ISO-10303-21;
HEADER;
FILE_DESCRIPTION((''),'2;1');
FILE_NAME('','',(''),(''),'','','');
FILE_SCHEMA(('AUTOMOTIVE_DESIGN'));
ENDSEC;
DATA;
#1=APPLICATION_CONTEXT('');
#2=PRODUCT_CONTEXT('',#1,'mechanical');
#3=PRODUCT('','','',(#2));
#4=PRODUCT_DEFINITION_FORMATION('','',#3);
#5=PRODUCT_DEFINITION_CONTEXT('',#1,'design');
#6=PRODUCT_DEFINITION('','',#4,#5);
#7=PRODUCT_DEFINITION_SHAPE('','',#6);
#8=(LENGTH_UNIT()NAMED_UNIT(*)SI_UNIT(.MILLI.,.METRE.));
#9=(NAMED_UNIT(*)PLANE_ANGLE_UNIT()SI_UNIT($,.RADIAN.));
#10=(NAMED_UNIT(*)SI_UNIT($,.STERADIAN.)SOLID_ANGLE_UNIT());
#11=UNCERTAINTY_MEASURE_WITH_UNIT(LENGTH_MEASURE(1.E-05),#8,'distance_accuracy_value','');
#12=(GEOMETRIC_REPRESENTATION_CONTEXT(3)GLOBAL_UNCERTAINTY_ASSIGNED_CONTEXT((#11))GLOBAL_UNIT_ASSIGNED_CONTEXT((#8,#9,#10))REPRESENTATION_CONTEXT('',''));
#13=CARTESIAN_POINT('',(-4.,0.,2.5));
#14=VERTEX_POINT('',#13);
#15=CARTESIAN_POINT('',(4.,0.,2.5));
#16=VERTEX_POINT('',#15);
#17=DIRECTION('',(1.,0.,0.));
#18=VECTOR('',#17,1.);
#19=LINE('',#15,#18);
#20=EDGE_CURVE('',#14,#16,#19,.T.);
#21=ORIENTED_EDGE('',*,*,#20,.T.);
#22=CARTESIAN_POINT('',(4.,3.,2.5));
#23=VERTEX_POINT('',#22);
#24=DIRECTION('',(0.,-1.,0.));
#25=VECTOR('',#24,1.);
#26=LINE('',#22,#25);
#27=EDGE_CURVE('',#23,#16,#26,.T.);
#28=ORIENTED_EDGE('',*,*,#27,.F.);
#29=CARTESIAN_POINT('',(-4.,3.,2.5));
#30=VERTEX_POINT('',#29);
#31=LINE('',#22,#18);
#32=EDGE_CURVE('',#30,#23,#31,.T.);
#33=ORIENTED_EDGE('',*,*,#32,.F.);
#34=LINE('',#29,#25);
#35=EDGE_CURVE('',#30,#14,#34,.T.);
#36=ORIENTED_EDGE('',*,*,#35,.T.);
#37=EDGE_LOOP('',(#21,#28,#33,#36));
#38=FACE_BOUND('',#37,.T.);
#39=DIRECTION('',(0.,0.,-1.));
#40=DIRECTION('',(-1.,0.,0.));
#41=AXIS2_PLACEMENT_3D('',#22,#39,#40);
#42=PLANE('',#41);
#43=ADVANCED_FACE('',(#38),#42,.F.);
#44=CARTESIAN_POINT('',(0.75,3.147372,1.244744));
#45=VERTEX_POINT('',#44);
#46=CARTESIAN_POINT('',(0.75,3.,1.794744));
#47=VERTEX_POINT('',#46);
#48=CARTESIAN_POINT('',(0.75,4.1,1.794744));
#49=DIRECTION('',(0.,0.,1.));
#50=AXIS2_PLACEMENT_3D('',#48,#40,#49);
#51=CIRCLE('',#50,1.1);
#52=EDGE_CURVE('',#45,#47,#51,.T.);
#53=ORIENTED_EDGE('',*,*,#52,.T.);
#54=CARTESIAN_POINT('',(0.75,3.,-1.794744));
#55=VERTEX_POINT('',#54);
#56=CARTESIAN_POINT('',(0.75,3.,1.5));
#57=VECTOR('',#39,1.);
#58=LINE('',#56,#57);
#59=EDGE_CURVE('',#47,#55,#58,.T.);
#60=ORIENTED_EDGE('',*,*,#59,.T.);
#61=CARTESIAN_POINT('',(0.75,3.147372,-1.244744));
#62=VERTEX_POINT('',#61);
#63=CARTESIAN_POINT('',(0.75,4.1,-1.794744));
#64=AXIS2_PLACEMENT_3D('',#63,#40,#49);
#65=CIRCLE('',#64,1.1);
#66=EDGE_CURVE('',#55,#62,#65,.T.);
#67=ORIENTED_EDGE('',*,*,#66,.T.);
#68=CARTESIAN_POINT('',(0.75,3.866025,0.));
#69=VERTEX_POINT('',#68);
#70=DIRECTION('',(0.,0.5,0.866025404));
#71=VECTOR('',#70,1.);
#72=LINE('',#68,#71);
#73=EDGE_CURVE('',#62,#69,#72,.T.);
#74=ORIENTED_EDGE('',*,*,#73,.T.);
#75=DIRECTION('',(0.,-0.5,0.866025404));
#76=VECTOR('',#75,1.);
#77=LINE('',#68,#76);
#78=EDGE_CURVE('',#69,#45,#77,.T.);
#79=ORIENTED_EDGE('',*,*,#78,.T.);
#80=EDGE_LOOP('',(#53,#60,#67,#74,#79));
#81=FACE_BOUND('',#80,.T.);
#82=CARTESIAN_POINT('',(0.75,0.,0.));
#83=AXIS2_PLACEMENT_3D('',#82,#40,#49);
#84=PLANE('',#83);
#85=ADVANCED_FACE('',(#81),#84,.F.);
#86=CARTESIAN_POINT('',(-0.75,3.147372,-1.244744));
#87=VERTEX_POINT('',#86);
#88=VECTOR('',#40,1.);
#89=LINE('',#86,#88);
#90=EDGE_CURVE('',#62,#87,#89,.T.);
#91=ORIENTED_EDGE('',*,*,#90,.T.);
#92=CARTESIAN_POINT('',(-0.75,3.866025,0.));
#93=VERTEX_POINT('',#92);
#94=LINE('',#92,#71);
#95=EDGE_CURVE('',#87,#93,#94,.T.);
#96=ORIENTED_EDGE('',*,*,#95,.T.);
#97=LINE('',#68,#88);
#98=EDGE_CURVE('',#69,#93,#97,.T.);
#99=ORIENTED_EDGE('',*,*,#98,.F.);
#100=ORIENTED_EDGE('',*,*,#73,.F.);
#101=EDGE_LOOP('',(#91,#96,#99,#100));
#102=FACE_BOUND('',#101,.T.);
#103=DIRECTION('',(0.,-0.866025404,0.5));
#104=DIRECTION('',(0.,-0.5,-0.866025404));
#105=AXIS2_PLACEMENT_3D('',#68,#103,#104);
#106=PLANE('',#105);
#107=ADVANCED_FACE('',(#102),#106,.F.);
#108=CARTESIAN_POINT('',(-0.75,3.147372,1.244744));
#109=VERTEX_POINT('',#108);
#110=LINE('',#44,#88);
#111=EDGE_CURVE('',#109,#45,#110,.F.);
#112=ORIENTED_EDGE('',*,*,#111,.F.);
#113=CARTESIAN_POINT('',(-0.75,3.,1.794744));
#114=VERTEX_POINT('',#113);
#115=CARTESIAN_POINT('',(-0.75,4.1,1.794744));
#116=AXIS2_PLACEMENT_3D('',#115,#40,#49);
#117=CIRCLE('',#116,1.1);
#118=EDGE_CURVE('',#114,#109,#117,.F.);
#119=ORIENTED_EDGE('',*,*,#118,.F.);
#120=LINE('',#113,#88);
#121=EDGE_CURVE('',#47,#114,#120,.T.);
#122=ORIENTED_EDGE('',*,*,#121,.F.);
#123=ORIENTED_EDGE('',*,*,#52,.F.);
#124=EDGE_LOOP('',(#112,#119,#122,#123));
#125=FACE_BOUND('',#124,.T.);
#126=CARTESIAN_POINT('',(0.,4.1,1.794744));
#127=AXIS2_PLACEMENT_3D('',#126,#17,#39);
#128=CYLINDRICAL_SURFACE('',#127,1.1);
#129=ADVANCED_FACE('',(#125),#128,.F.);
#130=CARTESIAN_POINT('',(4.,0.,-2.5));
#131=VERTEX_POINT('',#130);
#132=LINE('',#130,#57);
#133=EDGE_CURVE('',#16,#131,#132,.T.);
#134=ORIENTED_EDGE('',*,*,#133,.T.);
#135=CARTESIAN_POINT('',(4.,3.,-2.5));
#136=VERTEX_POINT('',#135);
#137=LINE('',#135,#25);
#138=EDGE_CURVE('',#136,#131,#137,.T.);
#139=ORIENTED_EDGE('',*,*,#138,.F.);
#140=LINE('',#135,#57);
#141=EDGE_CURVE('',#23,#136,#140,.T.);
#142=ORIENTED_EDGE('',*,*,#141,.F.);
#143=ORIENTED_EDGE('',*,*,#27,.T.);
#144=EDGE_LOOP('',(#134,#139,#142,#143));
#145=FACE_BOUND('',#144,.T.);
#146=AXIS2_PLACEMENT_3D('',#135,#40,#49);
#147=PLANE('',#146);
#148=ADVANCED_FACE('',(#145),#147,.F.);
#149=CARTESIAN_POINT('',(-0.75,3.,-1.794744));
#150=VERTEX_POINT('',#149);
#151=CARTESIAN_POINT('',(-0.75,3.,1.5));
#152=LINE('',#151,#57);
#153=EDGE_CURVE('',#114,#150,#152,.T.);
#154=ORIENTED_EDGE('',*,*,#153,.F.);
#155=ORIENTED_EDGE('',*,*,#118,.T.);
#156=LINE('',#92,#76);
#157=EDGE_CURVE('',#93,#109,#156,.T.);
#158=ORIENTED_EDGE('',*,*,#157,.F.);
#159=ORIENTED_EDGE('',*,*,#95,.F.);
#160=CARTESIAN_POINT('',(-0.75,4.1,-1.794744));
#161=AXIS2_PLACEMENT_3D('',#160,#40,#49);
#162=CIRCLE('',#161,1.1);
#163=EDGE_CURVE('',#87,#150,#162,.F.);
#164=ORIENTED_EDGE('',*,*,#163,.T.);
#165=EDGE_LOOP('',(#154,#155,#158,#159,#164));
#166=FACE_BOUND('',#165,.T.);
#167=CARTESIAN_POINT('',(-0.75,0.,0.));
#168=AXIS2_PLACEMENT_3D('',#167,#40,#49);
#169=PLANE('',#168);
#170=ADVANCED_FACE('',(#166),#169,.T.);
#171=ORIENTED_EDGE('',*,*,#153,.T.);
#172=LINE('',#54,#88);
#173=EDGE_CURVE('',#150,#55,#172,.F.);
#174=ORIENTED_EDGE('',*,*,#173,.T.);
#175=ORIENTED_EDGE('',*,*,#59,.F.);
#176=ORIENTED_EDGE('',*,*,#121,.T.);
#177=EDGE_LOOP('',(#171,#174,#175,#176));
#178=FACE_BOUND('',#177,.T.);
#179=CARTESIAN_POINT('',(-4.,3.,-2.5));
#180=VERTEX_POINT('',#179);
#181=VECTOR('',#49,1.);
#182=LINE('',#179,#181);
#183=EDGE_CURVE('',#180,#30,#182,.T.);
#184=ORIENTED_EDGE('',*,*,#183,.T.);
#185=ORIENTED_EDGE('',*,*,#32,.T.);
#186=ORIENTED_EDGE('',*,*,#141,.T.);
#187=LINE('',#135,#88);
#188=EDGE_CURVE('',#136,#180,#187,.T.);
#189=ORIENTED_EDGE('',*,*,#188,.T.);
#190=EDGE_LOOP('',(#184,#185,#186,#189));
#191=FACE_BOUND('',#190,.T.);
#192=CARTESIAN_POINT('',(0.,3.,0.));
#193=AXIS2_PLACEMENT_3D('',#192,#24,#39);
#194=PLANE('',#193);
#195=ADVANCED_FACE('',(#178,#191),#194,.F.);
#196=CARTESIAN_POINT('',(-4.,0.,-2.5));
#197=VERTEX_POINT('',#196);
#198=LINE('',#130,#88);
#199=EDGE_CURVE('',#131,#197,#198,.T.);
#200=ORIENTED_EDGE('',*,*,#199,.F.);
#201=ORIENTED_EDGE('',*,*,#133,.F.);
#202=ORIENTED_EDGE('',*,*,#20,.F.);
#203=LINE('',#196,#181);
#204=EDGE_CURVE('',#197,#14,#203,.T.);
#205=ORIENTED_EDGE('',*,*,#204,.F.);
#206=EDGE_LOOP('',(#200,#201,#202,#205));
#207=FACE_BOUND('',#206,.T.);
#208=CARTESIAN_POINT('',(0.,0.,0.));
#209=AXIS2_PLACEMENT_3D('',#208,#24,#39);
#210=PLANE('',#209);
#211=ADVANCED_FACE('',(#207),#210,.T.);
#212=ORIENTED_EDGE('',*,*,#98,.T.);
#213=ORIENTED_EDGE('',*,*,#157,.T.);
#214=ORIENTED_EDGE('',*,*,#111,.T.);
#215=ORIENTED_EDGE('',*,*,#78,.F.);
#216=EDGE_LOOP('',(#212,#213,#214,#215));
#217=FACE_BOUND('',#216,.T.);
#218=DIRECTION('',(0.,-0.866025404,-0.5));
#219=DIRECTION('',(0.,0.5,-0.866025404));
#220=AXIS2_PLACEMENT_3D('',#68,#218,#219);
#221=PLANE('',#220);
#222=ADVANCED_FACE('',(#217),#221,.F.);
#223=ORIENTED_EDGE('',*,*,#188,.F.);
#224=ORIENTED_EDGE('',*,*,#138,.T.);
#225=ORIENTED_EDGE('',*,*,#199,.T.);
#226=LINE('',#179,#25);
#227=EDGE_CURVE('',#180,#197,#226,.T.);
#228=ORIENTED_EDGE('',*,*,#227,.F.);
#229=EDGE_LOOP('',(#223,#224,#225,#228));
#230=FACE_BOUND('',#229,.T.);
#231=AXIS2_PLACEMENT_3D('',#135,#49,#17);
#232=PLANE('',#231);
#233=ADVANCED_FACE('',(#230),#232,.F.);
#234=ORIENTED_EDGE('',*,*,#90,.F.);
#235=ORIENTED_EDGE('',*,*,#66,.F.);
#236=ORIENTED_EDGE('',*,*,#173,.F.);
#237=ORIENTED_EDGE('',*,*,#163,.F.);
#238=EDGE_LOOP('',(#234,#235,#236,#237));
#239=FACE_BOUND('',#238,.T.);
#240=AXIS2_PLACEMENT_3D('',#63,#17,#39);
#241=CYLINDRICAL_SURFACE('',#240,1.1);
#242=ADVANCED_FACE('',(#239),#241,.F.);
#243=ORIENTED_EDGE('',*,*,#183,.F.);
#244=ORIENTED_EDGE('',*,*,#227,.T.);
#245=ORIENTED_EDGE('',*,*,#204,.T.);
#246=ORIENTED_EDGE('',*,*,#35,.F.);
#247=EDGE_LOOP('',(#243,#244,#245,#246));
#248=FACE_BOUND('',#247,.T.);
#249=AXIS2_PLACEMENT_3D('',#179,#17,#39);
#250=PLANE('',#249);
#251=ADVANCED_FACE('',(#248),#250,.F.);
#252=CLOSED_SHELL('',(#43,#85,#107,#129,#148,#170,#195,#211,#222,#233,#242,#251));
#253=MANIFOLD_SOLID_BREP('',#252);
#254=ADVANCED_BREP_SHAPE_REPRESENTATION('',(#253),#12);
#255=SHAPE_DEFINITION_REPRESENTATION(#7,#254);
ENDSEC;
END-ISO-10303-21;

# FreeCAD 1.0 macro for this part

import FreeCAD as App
import Part
import Sketcher
Q = App.Units.Quantity


def edges_at(feature, points):
    """Names of the edges that pass closest to the given points."""
    edges = feature.Shape.Edges
    near = lambda p: min(range(len(edges)), key=lambda i: edges[i].distToShape(Part.Vertex(*p))[0])
    return sorted({f"Edge{near(p) + 1}" for p in points})

doc = App.newDocument("Part")
body = doc.addObject("PartDesign::Body", "Body")

# Sketch on XZ plane
sketch1 = body.newObject("Sketcher::SketchObject", "Sketch")
sketch1.AttachmentSupport = (doc.getObject("XZ_Plane"), [""])
sketch1.MapMode = "FlatFace"
sketch1.addGeometry(Part.LineSegment(App.Vector(-4, -2, 0), App.Vector(-4, 2, 0)), False)
sketch1.addGeometry(Part.LineSegment(App.Vector(-4, 2, 0), App.Vector(4, 2, 0)), False)
sketch1.addGeometry(Part.LineSegment(App.Vector(4, 2, 0), App.Vector(4, -2, 0)), False)
sketch1.addGeometry(Part.LineSegment(App.Vector(4, -2, 0), App.Vector(-4, -2, 0)), False)
sketch1.addConstraint(Sketcher.Constraint("Coincident", 0, 2, 1, 1))
sketch1.addConstraint(Sketcher.Constraint("Coincident", 1, 2, 2, 1))
sketch1.addConstraint(Sketcher.Constraint("Coincident", 2, 2, 3, 1))
sketch1.addConstraint(Sketcher.Constraint("Coincident", 3, 2, 0, 1))
sketch1.addConstraint(Sketcher.Constraint("Vertical", 0))
sketch1.addConstraint(Sketcher.Constraint("Horizontal", 1))
sketch1.addConstraint(Sketcher.Constraint("Vertical", 2))
sketch1.addConstraint(Sketcher.Constraint("Horizontal", 3))
sketch1.addConstraint(Sketcher.Constraint("Symmetric", 0, 2, 2, 2, -1, 1))
sketch1.addConstraint(Sketcher.Constraint("DistanceX", 1, 1, 1, 2, 8.0))
sketch1.addConstraint(Sketcher.Constraint("DistanceY", 0, 1, 0, 2, 5.0))
pad1 = body.newObject("PartDesign::Pad", "Pad")
pad1.Profile = sketch1
pad1.Length = 3
pad1.Reversed = True

# Sketch on YZ plane
sketch2 = body.newObject("Sketcher::SketchObject", "Sketch001")
sketch2.AttachmentSupport = (doc.getObject("YZ_Plane"), [""])
sketch2.MapMode = "FlatFace"
sketch2.addGeometry(Part.LineSegment(App.Vector(3.9, 0, 0), App.Vector(3, 1.5, 0)), False)
sketch2.addGeometry(Part.LineSegment(App.Vector(3, 1.5, 0), App.Vector(3, -1.5, 0)), False)
sketch2.addGeometry(Part.LineSegment(App.Vector(3, -1.5, 0), App.Vector(3.9, 0, 0)), False)
sketch2.addConstraint(Sketcher.Constraint("Coincident", 0, 2, 1, 1))
sketch2.addConstraint(Sketcher.Constraint("Coincident", 1, 2, 2, 1))
sketch2.addConstraint(Sketcher.Constraint("Coincident", 2, 2, 0, 1))
sketch2.addConstraint(Sketcher.Constraint("Vertical", 1))
sketch2.addConstraint(Sketcher.Constraint("PointOnObject", 2, 2, -1))
sketch2.addConstraint(Sketcher.Constraint("Equal", 0, 2))
sketch2.addConstraint(Sketcher.Constraint("DistanceY", 1, 2, 1, 1, 3.0))
sketch2.addConstraint(Sketcher.Constraint("Angle", 0, Q("120 deg")))
sketch2.addConstraint(Sketcher.Constraint("DistanceX", -1, 1, 0, 2, 3.0))
pad2 = body.newObject("PartDesign::Pad", "Pad001")
pad2.Profile = sketch2
pad2.Length = 1.5
pad2.Midplane = True
doc.recompute()

fillet = body.newObject("PartDesign::Fillet", "Fillet")
fillet.Base = (pad2, edges_at(pad2, [(0, 3, -1.5), (0, 3, 1.5)]))
fillet.Radius = 1.1

doc.recompute()
